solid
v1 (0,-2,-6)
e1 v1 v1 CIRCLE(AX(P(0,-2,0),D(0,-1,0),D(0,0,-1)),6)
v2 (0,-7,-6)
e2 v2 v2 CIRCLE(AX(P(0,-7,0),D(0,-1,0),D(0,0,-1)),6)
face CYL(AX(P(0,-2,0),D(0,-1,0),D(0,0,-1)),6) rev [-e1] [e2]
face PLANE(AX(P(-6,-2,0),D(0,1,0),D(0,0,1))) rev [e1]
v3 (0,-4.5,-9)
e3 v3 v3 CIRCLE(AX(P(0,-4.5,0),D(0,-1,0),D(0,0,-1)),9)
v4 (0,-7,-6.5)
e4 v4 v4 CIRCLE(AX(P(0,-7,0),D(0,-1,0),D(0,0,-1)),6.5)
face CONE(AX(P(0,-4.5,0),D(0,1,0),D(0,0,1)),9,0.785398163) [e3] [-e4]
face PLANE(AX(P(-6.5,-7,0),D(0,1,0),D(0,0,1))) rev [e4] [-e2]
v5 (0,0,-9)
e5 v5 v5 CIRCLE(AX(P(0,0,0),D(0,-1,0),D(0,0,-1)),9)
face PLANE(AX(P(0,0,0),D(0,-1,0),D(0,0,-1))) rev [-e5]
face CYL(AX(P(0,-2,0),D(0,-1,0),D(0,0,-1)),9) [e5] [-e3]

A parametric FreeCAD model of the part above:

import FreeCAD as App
import Part
import Sketcher
from FreeCAD import Vector
Q = App.Units.Quantity

doc = App.newDocument("Part")
body = doc.addObject("PartDesign::Body", "Body")

# Sketch on XY plane
sketch1 = doc.addObject("Sketcher::SketchObject", "Sketch")
body.addObject(sketch1)
sketch1.AttachmentSupport = (doc.XY_Plane, [""])
sketch1.MapMode = "FlatFace"
sketch1.addGeometry([
    Part.LineSegment(Vector(0, 0, 0), Vector(-9, 0, 0)),  # 0
    Part.LineSegment(Vector(-9, 0, 0), Vector(-9, -4.5, 0)),  # 1
    Part.LineSegment(Vector(-9, -4.5, 0), Vector(-6.5, -7, 0)),  # 2
    Part.LineSegment(Vector(-6.5, -7, 0), Vector(-6, -7, 0)),  # 3
    Part.LineSegment(Vector(-6, -7, 0), Vector(-6, -2, 0)),  # 4
    Part.LineSegment(Vector(-6, -2, 0), Vector(0, -2, 0)),  # 5
    Part.LineSegment(Vector(0, -2, 0), Vector(0, 0, 0)),  # 6
], False)
sketch1.addConstraint([
    Sketcher.Constraint("Coincident", 0, 2, 1, 1),
    Sketcher.Constraint("Coincident", 1, 2, 2, 1),
    Sketcher.Constraint("Coincident", 2, 2, 3, 1),
    Sketcher.Constraint("Coincident", 3, 2, 4, 1),
    Sketcher.Constraint("Coincident", 4, 2, 5, 1),
    Sketcher.Constraint("Coincident", 5, 2, 6, 1),
    Sketcher.Constraint("Coincident", 6, 2, 0, 1),
    Sketcher.Constraint("Horizontal", 0),
    Sketcher.Constraint("Vertical", 1),
    Sketcher.Constraint("Horizontal", 3),
    Sketcher.Constraint("Vertical", 4),
    Sketcher.Constraint("Horizontal", 5),
    Sketcher.Constraint("Vertical", 6),
    Sketcher.Constraint("Coincident", 6, 2, -1, 1),
    Sketcher.Constraint("DistanceX", 0, 2, 0, 1, Q("9 mm")),
    Sketcher.Constraint("DistanceX", 5, 1, 5, 2, Q("6 mm")),
    Sketcher.Constraint("DistanceY", 4, 1, 4, 2, Q("5 mm")),
    Sketcher.Constraint("DistanceY", 6, 1, 6, 2, Q("2 mm")),
    Sketcher.Constraint("Angle", 2, Q("-45 deg")),
    Sketcher.Constraint("DistanceX", 3, 1, 3, 2, Q("0.5 mm")),
])
revolution = doc.addObject("PartDesign::Revolution", "Revolution")
body.addObject(revolution)
revolution.Profile = sketch1
revolution.ReferenceAxis = (sketch1, ["V_Axis"])
revolution.Angle = 360

doc.recompute()
